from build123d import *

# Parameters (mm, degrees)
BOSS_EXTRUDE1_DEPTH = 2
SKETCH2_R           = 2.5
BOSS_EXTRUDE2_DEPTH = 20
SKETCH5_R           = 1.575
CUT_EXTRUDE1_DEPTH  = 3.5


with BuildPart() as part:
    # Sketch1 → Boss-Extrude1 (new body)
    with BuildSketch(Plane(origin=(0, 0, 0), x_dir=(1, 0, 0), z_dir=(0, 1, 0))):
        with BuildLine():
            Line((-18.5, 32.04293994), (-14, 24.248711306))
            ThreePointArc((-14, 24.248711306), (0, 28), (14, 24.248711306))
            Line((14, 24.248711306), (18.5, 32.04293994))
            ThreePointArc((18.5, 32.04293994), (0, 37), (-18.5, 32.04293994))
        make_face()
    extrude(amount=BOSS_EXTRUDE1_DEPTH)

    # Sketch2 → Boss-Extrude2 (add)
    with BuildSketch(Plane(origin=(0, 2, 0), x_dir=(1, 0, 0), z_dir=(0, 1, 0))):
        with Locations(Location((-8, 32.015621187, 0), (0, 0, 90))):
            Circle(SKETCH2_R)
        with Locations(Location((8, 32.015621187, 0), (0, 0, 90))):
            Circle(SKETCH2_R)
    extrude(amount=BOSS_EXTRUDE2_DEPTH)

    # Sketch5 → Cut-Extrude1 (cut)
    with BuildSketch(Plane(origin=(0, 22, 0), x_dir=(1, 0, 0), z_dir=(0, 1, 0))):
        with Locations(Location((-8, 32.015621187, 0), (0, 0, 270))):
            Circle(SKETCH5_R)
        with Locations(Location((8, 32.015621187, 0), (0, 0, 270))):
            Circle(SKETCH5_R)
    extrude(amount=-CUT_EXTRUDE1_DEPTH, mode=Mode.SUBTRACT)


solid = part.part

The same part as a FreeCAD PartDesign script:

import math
import FreeCAD as App
import Part
import Sketcher

V = App.Vector
Q = App.Units.Quantity

doc = App.newDocument("Part")
params = doc.addObject("Spreadsheet::Sheet", "Params")
for row, (alias, value) in enumerate([
    ("sketch1_radius", "28 mm"),
    ("sketch1_radius2", "37 mm"),
    ("pad1_length", "2 mm"),
    ("sketch2_diameter", "5 mm"),
    ("pad2_length", "20 mm"),
    ("sketch3_diameter", "3.15 mm"),
    ("pocket1_length", "3.5 mm"),
], start=1):
    params.set(f"A{row}", alias)
    params.set(f"B{row}", "=" + value)
    params.setAlias(f"B{row}", alias)

body = doc.addObject("PartDesign::Body", "Body")

# Sketch on XZ plane
sketch1 = doc.addObject("Sketcher::SketchObject", "Sketch")
body.addObject(sketch1)
sketch1.AttachmentSupport = (doc.XZ_Plane, [""])
sketch1.MapMode = "FlatFace"
sketch1.addGeometry(Part.LineSegment(V(-18, -32, 0), V(-14, -24, 0)), False)
sketch1.addGeometry(Part.ArcOfCircle(Part.Circle(V(0, 0, 0), V(0, 0, 1), 28), math.radians(-120), math.radians(-60)), False)
sketch1.addGeometry(Part.LineSegment(V(14, -24, 0), V(18, -32, 0)), False)
sketch1.addGeometry(Part.ArcOfCircle(Part.Circle(V(0, 0, 0), V(0, 0, 1), 37), math.radians(-120), math.radians(-60)), False)
sketch1.addConstraint(Sketcher.Constraint("Coincident", 0, 2, 1, 1))
sketch1.addConstraint(Sketcher.Constraint("Coincident", 1, 2, 2, 1))
sketch1.addConstraint(Sketcher.Constraint("Coincident", 2, 2, 3, 2))
sketch1.addConstraint(Sketcher.Constraint("Coincident", 3, 1, 0, 1))
sketch1.addConstraint(Sketcher.Constraint("Coincident", 1, 3, -1, 1))
sketch1.addConstraint(Sketcher.Constraint("Coincident", 3, 3, -1, 1))
sketch1.addConstraint(Sketcher.Constraint("Horizontal", 0, 2, 1, 2))
sketch1.addConstraint(Sketcher.Constraint("Horizontal", 2, 2, 3, 1))
sketch1.addConstraint(Sketcher.Constraint("Radius", 1, 28.0))
sketch1.addConstraint(Sketcher.Constraint("Radius", 3, 37.0))
sketch1.addConstraint(Sketcher.Constraint("Angle", 0, Q("60 deg")))
sketch1.addConstraint(Sketcher.Constraint("DistanceX", 0, 2, -1, 1, 14.0))
sketch1.setExpression("Constraints[8]", "Params.sketch1_radius")
sketch1.setExpression("Constraints[9]", "Params.sketch1_radius2")
pad1 = doc.addObject("PartDesign::Pad", "Pad")
body.addObject(pad1)
pad1.Profile = sketch1
pad1.setExpression("Length", "Params.pad1_length")
pad1.Reversed = True

# Sketch on XZ plane
sketch2 = doc.addObject("Sketcher::SketchObject", "Sketch001")
body.addObject(sketch2)
sketch2.AttachmentSupport = (doc.XZ_Plane, [""])
sketch2.MapMode = "FlatFace"
sketch2.AttachmentOffset = App.Placement(V(0, 0, -2), App.Rotation())
sketch2.addGeometry(Part.Circle(V(-8, -32, 0), V(0, 0, 1), 2.5), False)
sketch2.addGeometry(Part.Circle(V(8, -32, 0), V(0, 0, 1), 2.5), False)
sketch2.addConstraint(Sketcher.Constraint("Equal", 0, 1))
sketch2.addConstraint(Sketcher.Constraint("Symmetric", 0, 3, 1, 3, -2))
sketch2.addConstraint(Sketcher.Constraint("Diameter", 0, 5.0))
sketch2.addConstraint(Sketcher.Constraint("DistanceX", 0, 3, -1, 1, 8.0))
sketch2.addConstraint(Sketcher.Constraint("DistanceY", 0, 3, -1, 1, 32.015621))
sketch2.setExpression("Constraints[2]", "Params.sketch2_diameter")
pad2 = doc.addObject("PartDesign::Pad", "Pad001")
body.addObject(pad2)
pad2.Profile = sketch2
pad2.setExpression("Length", "Params.pad2_length")
pad2.Reversed = True

# Sketch on XZ plane
sketch3 = doc.addObject("Sketcher::SketchObject", "Sketch002")
body.addObject(sketch3)
sketch3.AttachmentSupport = (doc.XZ_Plane, [""])
sketch3.MapMode = "FlatFace"
sketch3.AttachmentOffset = App.Placement(V(0, 0, -22), App.Rotation())
sketch3.addGeometry(Part.Circle(V(-8, -32, 0), V(0, 0, 1), 1.6), False)
sketch3.addGeometry(Part.Circle(V(8, -32, 0), V(0, 0, 1), 1.6), False)
sketch3.addConstraint(Sketcher.Constraint("Equal", 0, 1))
sketch3.addConstraint(Sketcher.Constraint("Symmetric", 0, 3, 1, 3, -2))
sketch3.addConstraint(Sketcher.Constraint("Diameter", 0, 3.15))
sketch3.addConstraint(Sketcher.Constraint("DistanceX", 0, 3, -1, 1, 8.0))
sketch3.addConstraint(Sketcher.Constraint("DistanceY", 0, 3, -1, 1, 32.015621))
sketch3.setExpression("Constraints[2]", "Params.sketch3_diameter")
pocket1 = doc.addObject("PartDesign::Pocket", "Pocket")
body.addObject(pocket1)
pocket1.Profile = sketch3
pocket1.setExpression("Length", "Params.pocket1_length")
pocket1.Reversed = True

doc.recompute()
